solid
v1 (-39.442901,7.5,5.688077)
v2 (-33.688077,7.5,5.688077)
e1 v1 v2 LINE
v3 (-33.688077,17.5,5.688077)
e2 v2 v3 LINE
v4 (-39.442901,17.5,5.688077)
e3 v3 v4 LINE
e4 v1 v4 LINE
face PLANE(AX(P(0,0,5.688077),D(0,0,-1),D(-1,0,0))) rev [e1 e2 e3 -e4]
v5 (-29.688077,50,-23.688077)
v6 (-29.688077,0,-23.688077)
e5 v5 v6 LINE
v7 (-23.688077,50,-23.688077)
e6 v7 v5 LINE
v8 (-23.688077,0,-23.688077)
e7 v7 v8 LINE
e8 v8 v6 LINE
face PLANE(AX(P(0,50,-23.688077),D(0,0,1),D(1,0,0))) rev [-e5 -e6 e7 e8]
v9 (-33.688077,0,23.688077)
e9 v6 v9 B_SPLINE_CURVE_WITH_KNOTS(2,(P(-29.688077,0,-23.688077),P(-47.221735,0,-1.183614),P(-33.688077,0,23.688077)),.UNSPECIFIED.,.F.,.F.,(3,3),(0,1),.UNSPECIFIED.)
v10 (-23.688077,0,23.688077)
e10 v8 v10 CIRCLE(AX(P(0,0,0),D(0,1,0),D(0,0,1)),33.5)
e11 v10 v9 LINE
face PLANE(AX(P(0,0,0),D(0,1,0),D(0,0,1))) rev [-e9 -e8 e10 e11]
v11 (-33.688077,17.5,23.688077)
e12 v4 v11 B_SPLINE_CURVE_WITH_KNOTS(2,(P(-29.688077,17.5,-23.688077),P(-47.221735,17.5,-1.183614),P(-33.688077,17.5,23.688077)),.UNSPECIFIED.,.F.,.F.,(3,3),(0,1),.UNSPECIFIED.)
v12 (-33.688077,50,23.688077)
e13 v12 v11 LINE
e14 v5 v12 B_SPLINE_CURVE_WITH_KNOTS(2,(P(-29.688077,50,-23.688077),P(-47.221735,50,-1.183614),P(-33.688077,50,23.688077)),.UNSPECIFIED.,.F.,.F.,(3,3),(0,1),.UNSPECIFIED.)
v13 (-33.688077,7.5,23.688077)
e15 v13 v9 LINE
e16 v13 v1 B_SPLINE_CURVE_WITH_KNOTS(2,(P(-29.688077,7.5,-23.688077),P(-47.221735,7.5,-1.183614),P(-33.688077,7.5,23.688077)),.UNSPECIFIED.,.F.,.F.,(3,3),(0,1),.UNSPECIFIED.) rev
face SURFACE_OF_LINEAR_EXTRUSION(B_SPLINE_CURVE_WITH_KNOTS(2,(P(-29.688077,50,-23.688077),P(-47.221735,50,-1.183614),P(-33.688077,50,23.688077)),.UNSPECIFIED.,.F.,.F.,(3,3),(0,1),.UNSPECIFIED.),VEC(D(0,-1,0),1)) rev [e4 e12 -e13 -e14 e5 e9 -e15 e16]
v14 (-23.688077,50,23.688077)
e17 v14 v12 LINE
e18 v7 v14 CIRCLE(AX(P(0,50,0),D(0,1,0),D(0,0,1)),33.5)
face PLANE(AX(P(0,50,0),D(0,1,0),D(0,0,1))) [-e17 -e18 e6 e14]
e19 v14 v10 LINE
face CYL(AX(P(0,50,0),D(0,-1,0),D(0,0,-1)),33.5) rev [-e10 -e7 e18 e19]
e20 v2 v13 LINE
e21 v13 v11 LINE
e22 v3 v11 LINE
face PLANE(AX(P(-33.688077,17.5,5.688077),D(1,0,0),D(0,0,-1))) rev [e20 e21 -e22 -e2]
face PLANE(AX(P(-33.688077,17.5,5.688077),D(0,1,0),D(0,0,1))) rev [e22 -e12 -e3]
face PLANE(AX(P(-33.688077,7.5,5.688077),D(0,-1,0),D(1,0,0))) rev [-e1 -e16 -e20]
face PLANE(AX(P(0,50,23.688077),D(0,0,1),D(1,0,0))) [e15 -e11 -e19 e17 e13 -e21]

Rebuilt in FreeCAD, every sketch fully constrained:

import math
import FreeCAD as App
import Part
import Sketcher
from FreeCAD import Vector
Q = App.Units.Quantity

doc = App.newDocument("Part")
body = doc.addObject("PartDesign::Body", "Body")

# Sketch on XZ plane
sketch1 = doc.addObject("Sketcher::SketchObject", "Sketch")
body.addObject(sketch1)
sketch1.AttachmentSupport = (doc.XZ_Plane, [""])
sketch1.MapMode = "FlatFace"
sketch1.addGeometry(Part.ArcOfCircle(Part.Circle(Vector(0, 0, 0), Vector(0, 0, 1), 33.5), math.radians(135), math.radians(225)), False)
sketch1.addGeometry(Part.LineSegment(Vector(-23.688077, -23.688077, 0), Vector(-29.688077, -23.688077, 0)), False)
sketch1.addGeometry(Part.BSplineCurve([Vector(-29.688077, -23.688077, 0), Vector(-47.221735, -1.183614, 0), Vector(-33.688077, 23.688077, 0)], [3, 3], [0, 1], False, 2, [1, 1, 1], False), False)
sketch1.addGeometry(Part.LineSegment(Vector(-33.688077, 23.688077, 0), Vector(-23.688077, 23.688077, 0)), False)
sketch1.addConstraint(Sketcher.Constraint("Block", 2))
sketch1.addConstraint(Sketcher.Constraint("Coincident", 0, 2, 1, 1))
sketch1.addConstraint(Sketcher.Constraint("Coincident", 1, 2, 2, 1))
sketch1.addConstraint(Sketcher.Constraint("Coincident", 2, 2, 3, 1))
sketch1.addConstraint(Sketcher.Constraint("Coincident", 3, 2, 0, 1))
sketch1.addConstraint(Sketcher.Constraint("Horizontal", 1))
sketch1.addConstraint(Sketcher.Constraint("Horizontal", 3))
sketch1.addConstraint(Sketcher.Constraint("Coincident", 0, 3, -1, 1))
sketch1.addConstraint(Sketcher.Constraint("Radius", 0, Q("33.5 mm")))
pad1 = doc.addObject("PartDesign::Pad", "Pad")
body.addObject(pad1)
pad1.Profile = sketch1
pad1.Length = 50
pad1.Reversed = True

# Sketch on XY plane
sketch2 = doc.addObject("Sketcher::SketchObject", "Sketch001")
body.addObject(sketch2)
sketch2.AttachmentSupport = (doc.XY_Plane, [""])
sketch2.MapMode = "FlatFace"
sketch2.AttachmentOffset = App.Placement(Vector(0, 0, 23.688077), App.Rotation())
sketch2.addGeometry(Part.LineSegment(Vector(-42, 18, 0), Vector(-42, 8, 0)), False)
sketch2.addGeometry(Part.LineSegment(Vector(-42, 8, 0), Vector(-34, 8, 0)), False)
sketch2.addGeometry(Part.LineSegment(Vector(-34, 8, 0), Vector(-34, 18, 0)), False)
sketch2.addGeometry(Part.LineSegment(Vector(-34, 18, 0), Vector(-42, 18, 0)), False)
sketch2.addConstraint(Sketcher.Constraint("Coincident", 0, 2, 1, 1))
sketch2.addConstraint(Sketcher.Constraint("Coincident", 1, 2, 2, 1))
sketch2.addConstraint(Sketcher.Constraint("Coincident", 2, 2, 3, 1))
sketch2.addConstraint(Sketcher.Constraint("Coincident", 3, 2, 0, 1))
sketch2.addConstraint(Sketcher.Constraint("Vertical", 0))
sketch2.addConstraint(Sketcher.Constraint("Horizontal", 1))
sketch2.addConstraint(Sketcher.Constraint("Vertical", 2))
sketch2.addConstraint(Sketcher.Constraint("Horizontal", 3))
sketch2.addConstraint(Sketcher.Constraint("DistanceX", 1, 1, 1, 2, Q("8 mm")))
sketch2.addConstraint(Sketcher.Constraint("DistanceY", 0, 2, 0, 1, Q("10 mm")))
sketch2.addConstraint(Sketcher.Constraint("DistanceY", -1, 1, 0, 2, Q("7.5 mm")))
sketch2.addConstraint(Sketcher.Constraint("DistanceX", 0, 2, -1, 1, Q("41.688077 mm")))
pocket1 = doc.addObject("PartDesign::Pocket", "Pocket")
body.addObject(pocket1)
pocket1.Profile = sketch2
pocket1.Length = 18

doc.recompute()
